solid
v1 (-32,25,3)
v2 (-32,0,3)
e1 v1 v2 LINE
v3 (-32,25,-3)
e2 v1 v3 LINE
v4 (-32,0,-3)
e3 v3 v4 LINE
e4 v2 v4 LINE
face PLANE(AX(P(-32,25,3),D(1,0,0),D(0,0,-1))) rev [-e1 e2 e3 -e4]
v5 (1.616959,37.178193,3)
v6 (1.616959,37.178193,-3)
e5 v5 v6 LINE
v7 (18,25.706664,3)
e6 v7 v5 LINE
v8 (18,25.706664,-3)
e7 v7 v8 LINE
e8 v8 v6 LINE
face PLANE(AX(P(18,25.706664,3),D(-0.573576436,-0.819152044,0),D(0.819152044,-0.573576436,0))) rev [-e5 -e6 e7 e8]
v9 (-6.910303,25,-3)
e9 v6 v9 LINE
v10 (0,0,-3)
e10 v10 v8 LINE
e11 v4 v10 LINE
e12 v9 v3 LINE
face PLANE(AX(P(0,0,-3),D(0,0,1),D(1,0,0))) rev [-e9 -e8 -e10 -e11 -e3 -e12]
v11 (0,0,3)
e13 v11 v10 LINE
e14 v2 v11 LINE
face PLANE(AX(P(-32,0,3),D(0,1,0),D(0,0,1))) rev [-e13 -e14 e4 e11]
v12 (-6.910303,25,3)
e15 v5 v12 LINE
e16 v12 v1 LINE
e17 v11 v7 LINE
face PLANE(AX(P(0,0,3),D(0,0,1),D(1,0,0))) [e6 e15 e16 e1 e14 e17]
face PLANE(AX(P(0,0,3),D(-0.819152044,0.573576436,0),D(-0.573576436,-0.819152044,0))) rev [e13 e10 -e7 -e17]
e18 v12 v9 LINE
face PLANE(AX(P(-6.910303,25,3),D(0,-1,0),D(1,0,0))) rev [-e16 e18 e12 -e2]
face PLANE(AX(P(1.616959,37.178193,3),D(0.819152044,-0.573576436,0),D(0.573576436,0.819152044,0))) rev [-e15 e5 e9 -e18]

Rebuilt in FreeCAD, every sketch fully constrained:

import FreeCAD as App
import Part
import Sketcher

V = App.Vector
Q = App.Units.Quantity


def add_polygon(sketch, points):
    """Adds a closed chain of lines whose ends are joined by coincident constraints."""
    first, n = sketch.GeometryCount, len(points)
    for a, b in zip(points, points[1:] + points[:1]):
        sketch.addGeometry(Part.LineSegment(App.Vector(*a, 0), App.Vector(*b, 0)), False)
    for i in range(n):
        sketch.addConstraint(Sketcher.Constraint("Coincident", first + i, 2, first + (i + 1) % n, 1))

doc = App.newDocument("Part")
body = doc.addObject("PartDesign::Body", "Body")

# Sketch on XY plane
sketch1 = body.newObject("Sketcher::SketchObject", "Sketch")
sketch1.AttachmentSupport = (doc.getObject("XY_Plane"), [""])
sketch1.MapMode = "FlatFace"
add_polygon(sketch1, [(-32, 0), (0, 0), (18, 26), (2, 37), (-7, 25), (-32, 25)])  # lines 0-5
sketch1.addConstraint(Sketcher.Constraint("Horizontal", 0))
sketch1.addConstraint(Sketcher.Constraint("Horizontal", 4))
sketch1.addConstraint(Sketcher.Constraint("Vertical", 5))
sketch1.addConstraint(Sketcher.Constraint("Coincident", 0, 2, -1, 1))
sketch1.addConstraint(Sketcher.Constraint("Perpendicular", 1, 2))
sketch1.addConstraint(Sketcher.Constraint("Perpendicular", 2, 3))
sketch1.addConstraint(Sketcher.Constraint("DistanceX", 0, 1, 0, 2, 32.0))
sketch1.addConstraint(Sketcher.Constraint("DistanceY", 5, 2, 5, 1, 25.0))
sketch1.addConstraint(Sketcher.Constraint("Angle", 1, Q("55 deg")))
sketch1.addConstraint(Sketcher.Constraint("Distance", 2, 20.0))
sketch1.addConstraint(Sketcher.Constraint("DistanceX", -1, 1, 1, 2, 18.0))
pad1 = body.newObject("PartDesign::Pad", "Pad")
pad1.Profile = sketch1
pad1.Length = 6
pad1.Midplane = True

doc.recompute()
